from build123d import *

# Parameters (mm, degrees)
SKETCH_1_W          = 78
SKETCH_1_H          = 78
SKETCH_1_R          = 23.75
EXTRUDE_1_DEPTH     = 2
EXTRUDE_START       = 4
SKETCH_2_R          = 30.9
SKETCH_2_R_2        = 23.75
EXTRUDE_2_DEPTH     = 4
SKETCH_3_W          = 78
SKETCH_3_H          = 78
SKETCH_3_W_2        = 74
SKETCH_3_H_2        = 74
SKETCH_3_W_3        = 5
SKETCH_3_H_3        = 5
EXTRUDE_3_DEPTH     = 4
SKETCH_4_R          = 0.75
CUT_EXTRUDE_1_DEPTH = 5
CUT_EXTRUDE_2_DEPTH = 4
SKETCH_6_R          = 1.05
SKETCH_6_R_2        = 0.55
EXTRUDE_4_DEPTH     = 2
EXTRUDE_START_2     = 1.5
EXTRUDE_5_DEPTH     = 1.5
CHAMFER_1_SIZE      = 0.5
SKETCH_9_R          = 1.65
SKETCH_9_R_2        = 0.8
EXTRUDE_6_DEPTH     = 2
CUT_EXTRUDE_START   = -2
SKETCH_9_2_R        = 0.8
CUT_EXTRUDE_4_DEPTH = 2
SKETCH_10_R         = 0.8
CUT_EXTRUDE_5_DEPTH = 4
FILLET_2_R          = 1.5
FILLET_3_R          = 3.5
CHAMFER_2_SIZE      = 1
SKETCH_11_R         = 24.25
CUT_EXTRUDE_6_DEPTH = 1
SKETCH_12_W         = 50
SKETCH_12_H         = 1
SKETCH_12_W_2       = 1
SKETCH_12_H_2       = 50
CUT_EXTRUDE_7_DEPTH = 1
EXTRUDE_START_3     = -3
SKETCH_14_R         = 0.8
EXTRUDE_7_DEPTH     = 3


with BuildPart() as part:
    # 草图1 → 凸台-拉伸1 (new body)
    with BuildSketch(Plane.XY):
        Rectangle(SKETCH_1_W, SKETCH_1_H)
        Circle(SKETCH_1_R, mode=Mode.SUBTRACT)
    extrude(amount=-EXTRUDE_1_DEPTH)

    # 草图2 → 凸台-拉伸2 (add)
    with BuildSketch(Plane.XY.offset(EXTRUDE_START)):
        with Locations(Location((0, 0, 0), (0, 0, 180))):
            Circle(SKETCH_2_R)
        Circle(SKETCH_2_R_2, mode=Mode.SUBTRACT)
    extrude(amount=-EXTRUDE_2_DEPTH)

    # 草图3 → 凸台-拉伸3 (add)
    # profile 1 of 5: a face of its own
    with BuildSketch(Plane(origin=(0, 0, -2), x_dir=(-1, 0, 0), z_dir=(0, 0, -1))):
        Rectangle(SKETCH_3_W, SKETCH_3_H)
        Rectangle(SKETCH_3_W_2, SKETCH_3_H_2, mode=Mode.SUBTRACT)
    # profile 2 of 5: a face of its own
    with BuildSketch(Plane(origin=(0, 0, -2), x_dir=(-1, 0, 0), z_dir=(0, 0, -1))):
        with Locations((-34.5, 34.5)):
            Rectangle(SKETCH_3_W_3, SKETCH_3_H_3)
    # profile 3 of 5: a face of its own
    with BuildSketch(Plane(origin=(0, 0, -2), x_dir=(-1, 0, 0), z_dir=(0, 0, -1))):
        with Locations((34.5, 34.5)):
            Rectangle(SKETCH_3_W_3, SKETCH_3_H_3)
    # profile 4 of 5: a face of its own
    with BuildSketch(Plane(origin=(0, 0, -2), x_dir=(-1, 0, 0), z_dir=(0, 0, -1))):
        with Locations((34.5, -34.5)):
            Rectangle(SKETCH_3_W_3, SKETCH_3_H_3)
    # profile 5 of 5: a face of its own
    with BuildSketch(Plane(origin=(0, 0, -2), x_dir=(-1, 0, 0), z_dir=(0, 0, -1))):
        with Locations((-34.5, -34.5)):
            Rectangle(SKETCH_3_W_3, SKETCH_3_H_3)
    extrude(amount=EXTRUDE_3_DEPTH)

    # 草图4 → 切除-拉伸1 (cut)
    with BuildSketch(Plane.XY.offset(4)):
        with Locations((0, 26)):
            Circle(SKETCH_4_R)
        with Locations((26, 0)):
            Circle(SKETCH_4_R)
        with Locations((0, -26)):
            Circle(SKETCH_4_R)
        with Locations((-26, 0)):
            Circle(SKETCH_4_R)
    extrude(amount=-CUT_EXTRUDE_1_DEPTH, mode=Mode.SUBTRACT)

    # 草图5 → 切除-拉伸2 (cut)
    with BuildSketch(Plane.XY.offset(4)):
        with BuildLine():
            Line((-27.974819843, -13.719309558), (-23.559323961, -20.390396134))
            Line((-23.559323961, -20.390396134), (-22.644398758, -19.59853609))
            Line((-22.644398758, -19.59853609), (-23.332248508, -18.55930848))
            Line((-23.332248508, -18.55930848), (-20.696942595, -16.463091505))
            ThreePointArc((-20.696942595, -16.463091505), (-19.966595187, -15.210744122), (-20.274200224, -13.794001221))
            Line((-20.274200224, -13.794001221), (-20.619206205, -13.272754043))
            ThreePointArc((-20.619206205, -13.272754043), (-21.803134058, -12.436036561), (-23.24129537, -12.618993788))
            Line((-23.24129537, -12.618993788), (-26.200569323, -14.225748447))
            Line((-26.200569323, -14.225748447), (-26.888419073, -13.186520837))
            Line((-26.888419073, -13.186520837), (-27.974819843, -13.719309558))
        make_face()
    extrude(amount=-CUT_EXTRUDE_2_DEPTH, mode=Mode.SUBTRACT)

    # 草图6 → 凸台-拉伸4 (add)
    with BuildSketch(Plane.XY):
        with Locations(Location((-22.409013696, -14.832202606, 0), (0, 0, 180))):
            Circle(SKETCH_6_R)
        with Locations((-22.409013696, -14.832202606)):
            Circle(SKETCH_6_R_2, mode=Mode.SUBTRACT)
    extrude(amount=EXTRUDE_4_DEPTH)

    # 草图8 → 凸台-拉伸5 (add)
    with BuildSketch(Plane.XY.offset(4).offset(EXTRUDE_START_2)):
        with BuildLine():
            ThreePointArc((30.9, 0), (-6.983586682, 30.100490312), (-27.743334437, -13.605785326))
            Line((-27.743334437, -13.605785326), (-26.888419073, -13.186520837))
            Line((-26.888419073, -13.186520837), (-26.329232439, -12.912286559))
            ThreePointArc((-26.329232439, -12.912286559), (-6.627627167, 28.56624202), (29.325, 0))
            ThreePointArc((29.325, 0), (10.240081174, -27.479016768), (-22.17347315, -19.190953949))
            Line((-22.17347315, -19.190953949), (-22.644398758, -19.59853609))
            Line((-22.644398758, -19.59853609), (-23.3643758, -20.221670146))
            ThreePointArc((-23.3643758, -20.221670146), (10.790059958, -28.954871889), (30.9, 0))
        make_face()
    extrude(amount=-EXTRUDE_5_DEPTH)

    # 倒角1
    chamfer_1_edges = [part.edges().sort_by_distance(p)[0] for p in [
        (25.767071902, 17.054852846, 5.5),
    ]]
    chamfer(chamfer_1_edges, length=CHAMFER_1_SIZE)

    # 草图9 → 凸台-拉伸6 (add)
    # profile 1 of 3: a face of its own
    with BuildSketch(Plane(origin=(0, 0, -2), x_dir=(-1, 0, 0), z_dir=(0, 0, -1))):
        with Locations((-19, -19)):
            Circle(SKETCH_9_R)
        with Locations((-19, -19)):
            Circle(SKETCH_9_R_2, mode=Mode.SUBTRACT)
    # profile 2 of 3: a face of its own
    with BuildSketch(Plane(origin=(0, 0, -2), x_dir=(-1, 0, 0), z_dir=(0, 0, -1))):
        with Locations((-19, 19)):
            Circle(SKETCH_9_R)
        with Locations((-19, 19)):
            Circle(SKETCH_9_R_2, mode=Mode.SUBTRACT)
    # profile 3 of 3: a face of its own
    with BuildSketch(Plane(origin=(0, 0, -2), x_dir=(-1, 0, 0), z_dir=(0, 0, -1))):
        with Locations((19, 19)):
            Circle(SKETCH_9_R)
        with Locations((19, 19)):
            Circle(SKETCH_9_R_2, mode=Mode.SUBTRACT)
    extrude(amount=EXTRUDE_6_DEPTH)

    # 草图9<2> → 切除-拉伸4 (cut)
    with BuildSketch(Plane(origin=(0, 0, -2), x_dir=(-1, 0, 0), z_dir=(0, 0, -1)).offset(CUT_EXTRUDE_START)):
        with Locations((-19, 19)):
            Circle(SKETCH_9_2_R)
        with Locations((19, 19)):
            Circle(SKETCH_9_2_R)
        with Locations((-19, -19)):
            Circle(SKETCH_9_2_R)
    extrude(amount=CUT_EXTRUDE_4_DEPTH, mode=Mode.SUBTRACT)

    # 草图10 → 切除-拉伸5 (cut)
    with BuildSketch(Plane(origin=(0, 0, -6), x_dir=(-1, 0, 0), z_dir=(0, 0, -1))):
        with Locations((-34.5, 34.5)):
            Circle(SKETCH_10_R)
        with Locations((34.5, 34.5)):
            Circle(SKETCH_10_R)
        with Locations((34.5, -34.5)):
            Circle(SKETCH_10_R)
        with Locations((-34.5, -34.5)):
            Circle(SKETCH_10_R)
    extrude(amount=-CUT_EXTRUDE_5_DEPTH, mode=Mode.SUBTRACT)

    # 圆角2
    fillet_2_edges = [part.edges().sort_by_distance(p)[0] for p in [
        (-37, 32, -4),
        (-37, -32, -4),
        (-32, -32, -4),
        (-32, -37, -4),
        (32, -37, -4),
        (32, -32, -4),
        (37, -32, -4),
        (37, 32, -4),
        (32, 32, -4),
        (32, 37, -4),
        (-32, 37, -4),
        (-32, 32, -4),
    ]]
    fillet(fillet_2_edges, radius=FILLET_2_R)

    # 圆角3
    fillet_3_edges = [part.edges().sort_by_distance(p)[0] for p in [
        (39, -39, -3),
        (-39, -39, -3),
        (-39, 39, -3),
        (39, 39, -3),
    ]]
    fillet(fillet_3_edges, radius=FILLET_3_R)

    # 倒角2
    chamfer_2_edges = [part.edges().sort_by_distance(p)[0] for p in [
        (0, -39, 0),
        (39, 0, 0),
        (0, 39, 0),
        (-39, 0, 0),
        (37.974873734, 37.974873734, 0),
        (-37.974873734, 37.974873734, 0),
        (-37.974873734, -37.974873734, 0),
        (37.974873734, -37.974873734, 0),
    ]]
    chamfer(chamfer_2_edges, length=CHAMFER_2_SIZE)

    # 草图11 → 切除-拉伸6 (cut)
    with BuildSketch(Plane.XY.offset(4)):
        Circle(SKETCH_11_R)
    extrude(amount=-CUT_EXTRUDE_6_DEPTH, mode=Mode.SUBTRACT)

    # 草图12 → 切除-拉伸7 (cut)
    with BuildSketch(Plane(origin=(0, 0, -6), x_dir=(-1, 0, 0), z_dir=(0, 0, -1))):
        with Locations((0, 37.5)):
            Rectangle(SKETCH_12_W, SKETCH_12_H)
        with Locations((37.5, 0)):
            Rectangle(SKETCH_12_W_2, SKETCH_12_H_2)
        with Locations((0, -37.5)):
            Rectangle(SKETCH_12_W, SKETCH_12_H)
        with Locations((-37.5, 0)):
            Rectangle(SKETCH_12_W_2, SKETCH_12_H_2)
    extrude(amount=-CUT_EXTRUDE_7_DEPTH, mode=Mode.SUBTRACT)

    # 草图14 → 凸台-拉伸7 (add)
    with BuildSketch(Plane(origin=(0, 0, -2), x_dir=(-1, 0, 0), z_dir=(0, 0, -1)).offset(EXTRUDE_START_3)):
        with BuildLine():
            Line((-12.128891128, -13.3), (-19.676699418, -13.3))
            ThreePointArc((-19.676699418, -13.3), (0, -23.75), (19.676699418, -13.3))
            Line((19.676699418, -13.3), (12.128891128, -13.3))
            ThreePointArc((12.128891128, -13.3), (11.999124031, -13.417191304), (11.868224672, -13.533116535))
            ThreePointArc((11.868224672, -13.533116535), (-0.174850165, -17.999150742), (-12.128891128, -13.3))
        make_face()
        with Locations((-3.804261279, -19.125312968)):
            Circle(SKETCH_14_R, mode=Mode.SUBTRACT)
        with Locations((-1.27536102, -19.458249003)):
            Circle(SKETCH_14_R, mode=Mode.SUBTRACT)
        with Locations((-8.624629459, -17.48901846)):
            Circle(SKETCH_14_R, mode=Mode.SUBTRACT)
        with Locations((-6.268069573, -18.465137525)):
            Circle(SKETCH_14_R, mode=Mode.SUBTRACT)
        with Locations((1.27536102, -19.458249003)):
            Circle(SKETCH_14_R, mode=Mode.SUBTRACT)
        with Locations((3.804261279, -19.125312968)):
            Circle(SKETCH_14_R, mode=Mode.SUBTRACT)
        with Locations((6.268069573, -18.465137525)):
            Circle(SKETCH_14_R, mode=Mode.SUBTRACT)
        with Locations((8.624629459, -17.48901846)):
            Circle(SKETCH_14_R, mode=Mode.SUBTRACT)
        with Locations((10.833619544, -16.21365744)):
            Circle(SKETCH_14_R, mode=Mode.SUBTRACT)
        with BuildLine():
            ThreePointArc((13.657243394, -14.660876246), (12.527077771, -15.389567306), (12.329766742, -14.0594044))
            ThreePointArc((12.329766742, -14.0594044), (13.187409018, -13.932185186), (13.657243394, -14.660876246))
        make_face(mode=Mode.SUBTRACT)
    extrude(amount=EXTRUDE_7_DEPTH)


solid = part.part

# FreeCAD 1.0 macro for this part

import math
import FreeCAD as App
import Part
import Sketcher
from FreeCAD import Vector
Q = App.Units.Quantity


def edges_at(feature, points):
    """Names of the edges that pass closest to the given points."""
    edges = feature.Shape.Edges
    near = lambda p: min(range(len(edges)), key=lambda i: edges[i].distToShape(Part.Vertex(*p))[0])
    return sorted({f"Edge{near(p) + 1}" for p in points})


def add_polygon(sketch, points):
    """Adds a closed chain of lines whose ends are joined by coincident constraints."""
    first, n = sketch.GeometryCount, len(points)
    for a, b in zip(points, points[1:] + points[:1]):
        sketch.addGeometry(Part.LineSegment(App.Vector(*a, 0), App.Vector(*b, 0)), False)
    for i in range(n):
        sketch.addConstraint(Sketcher.Constraint("Coincident", first + i, 2, first + (i + 1) % n, 1))

doc = App.newDocument("Part")
body = doc.addObject("PartDesign::Body", "Body")

# Sketch on XY plane
sketch1 = body.newObject("Sketcher::SketchObject", "Sketch")
sketch1.AttachmentSupport = (doc.getObject("XY_Plane"), [""])
sketch1.MapMode = "FlatFace"
add_polygon(sketch1, [(-39, 39), (-39, -39), (39, -39), (39, 39)])  # lines 0-3
sketch1.addGeometry(Part.Circle(Vector(0, 0, 0), Vector(0, 0, 1), 24), False)  # 4
sketch1.addConstraint(Sketcher.Constraint("Vertical", 0))
sketch1.addConstraint(Sketcher.Constraint("Horizontal", 1))
sketch1.addConstraint(Sketcher.Constraint("Vertical", 2))
sketch1.addConstraint(Sketcher.Constraint("Horizontal", 3))
sketch1.addConstraint(Sketcher.Constraint("Coincident", 4, 3, -1, 1))
sketch1.addConstraint(Sketcher.Constraint("Symmetric", 0, 2, 2, 2, -1, 1))
sketch1.addConstraint(Sketcher.Constraint("Equal", 3, 0))
sketch1.addConstraint(Sketcher.Constraint("Diameter", 4, Q("47.5 mm")))
sketch1.addConstraint(Sketcher.Constraint("DistanceX", 1, 1, 1, 2, Q("78 mm")))
pad1 = body.newObject("PartDesign::Pad", "Pad")
pad1.Profile = sketch1
pad1.Length = 2
pad1.Reversed = True

# Sketch on XY plane
sketch2 = body.newObject("Sketcher::SketchObject", "Sketch001")
sketch2.AttachmentSupport = (doc.getObject("XY_Plane"), [""])
sketch2.MapMode = "FlatFace"
sketch2.AttachmentOffset = App.Placement(Vector(0, 0, 4), App.Rotation())
sketch2.addGeometry(Part.Circle(Vector(0, 0, 0), Vector(0, 0, 1), 31), False)
sketch2.addGeometry(Part.Circle(Vector(0, 0, 0), Vector(0, 0, 1), 24), False)
sketch2.addConstraint(Sketcher.Constraint("Coincident", 0, 3, -1, 1))
sketch2.addConstraint(Sketcher.Constraint("Coincident", 1, 3, -1, 1))
sketch2.addConstraint(Sketcher.Constraint("Diameter", 0, Q("61.8 mm")))
sketch2.addConstraint(Sketcher.Constraint("Diameter", 1, Q("47.5 mm")))
pad2 = body.newObject("PartDesign::Pad", "Pad001")
pad2.Profile = sketch2
pad2.Length = 4
pad2.Reversed = True

# Sketch on XY plane
sketch3 = body.newObject("Sketcher::SketchObject", "Sketch002")
sketch3.AttachmentSupport = (doc.getObject("XY_Plane"), [""])
sketch3.MapMode = "FlatFace"
sketch3.AttachmentOffset = App.Placement(Vector(0, 0, -2), App.Rotation())
add_polygon(sketch3, [(39, 39), (39, -39), (-39, -39), (-39, 39)])  # lines 0-3
add_polygon(sketch3, [(-32, -37), (32, -37), (32, -32), (37, -32), (37, 32), (32, 32), (32, 37), (-32, 37), (-32, 32), (-37, 32), (-37, -32), (-32, -32)])  # lines 4-15
sketch3.addConstraint(Sketcher.Constraint("Vertical", 0))
sketch3.addConstraint(Sketcher.Constraint("Horizontal", 1))
sketch3.addConstraint(Sketcher.Constraint("Vertical", 2))
sketch3.addConstraint(Sketcher.Constraint("Horizontal", 3))
sketch3.addConstraint(Sketcher.Constraint("Horizontal", 4))
sketch3.addConstraint(Sketcher.Constraint("Vertical", 5))
sketch3.addConstraint(Sketcher.Constraint("Horizontal", 6))
sketch3.addConstraint(Sketcher.Constraint("Vertical", 7))
sketch3.addConstraint(Sketcher.Constraint("Horizontal", 8))
sketch3.addConstraint(Sketcher.Constraint("Vertical", 9))
sketch3.addConstraint(Sketcher.Constraint("Horizontal", 10))
sketch3.addConstraint(Sketcher.Constraint("Vertical", 11))
sketch3.addConstraint(Sketcher.Constraint("Horizontal", 12))
sketch3.addConstraint(Sketcher.Constraint("Vertical", 13))
sketch3.addConstraint(Sketcher.Constraint("Horizontal", 14))
sketch3.addConstraint(Sketcher.Constraint("Vertical", 15))
sketch3.addConstraint(Sketcher.Constraint("Symmetric", 0, 2, 2, 2, -1, 1))
sketch3.addConstraint(Sketcher.Constraint("Symmetric", 4, 2, 10, 2, -1, 1))
sketch3.addConstraint(Sketcher.Constraint("Symmetric", 6, 2, 12, 2, -1, 1))
sketch3.addConstraint(Sketcher.Constraint("Symmetric", 8, 2, 14, 2, -1, 1))
sketch3.addConstraint(Sketcher.Constraint("Symmetric", 8, 2, 11, 2, -2))
sketch3.addConstraint(Sketcher.Constraint("Equal", 3, 0))
sketch3.addConstraint(Sketcher.Constraint("Equal", 14, 5))
sketch3.addConstraint(Sketcher.Constraint("Equal", 10, 7))
sketch3.addConstraint(Sketcher.Constraint("DistanceX", 1, 2, 1, 1, Q("78 mm")))
sketch3.addConstraint(Sketcher.Constraint("DistanceX", 4, 1, 4, 2, Q("64 mm")))
sketch3.addConstraint(Sketcher.Constraint("DistanceX", 6, 1, 6, 2, Q("5 mm")))
pad3 = body.newObject("PartDesign::Pad", "Pad002")
pad3.Profile = sketch3
pad3.Length = 4
pad3.Reversed = True

# Sketch on XY plane
sketch4 = body.newObject("Sketcher::SketchObject", "Sketch003")
sketch4.AttachmentSupport = (doc.getObject("XY_Plane"), [""])
sketch4.MapMode = "FlatFace"
sketch4.AttachmentOffset = App.Placement(Vector(0, 0, 4), App.Rotation())
sketch4.addGeometry(Part.Circle(Vector(0, 26, 0), Vector(0, 0, 1), 0.8), False)
sketch4.addGeometry(Part.Circle(Vector(26, 0, 0), Vector(0, 0, 1), 0.8), False)
sketch4.addGeometry(Part.Circle(Vector(0, -26, 0), Vector(0, 0, 1), 0.8), False)
sketch4.addGeometry(Part.Circle(Vector(-26, 0, 0), Vector(0, 0, 1), 0.8), False)
sketch4.addConstraint(Sketcher.Constraint("Equal", 0, 1))
sketch4.addConstraint(Sketcher.Constraint("Equal", 1, 2))
sketch4.addConstraint(Sketcher.Constraint("Equal", 2, 3))
sketch4.addConstraint(Sketcher.Constraint("Symmetric", 0, 3, 2, 3, -1, 1))
sketch4.addConstraint(Sketcher.Constraint("Symmetric", 1, 3, 3, 3, -1, 1))
sketch4.addConstraint(Sketcher.Constraint("PointOnObject", 0, 3, -2))
sketch4.addConstraint(Sketcher.Constraint("PointOnObject", 1, 3, -1))
sketch4.addConstraint(Sketcher.Constraint("Diameter", 0, Q("1.5 mm")))
sketch4.addConstraint(Sketcher.Constraint("DistanceY", -1, 1, 0, 3, Q("26 mm")))
sketch4.addConstraint(Sketcher.Constraint("DistanceX", -1, 1, 1, 3, Q("26 mm")))
pocket1 = body.newObject("PartDesign::Pocket", "Pocket")
pocket1.Profile = sketch4
pocket1.Length = 5

# Sketch on XY plane
sketch5 = body.newObject("Sketcher::SketchObject", "Sketch004")
sketch5.AttachmentSupport = (doc.getObject("XY_Plane"), [""])
sketch5.MapMode = "FlatFace"
sketch5.AttachmentOffset = App.Placement(Vector(0, 0, 4), App.Rotation())
sketch5.addGeometry(Part.LineSegment(Vector(-28, -13.7, 0), Vector(-23.6, -20.4, 0)), False)
sketch5.addGeometry(Part.LineSegment(Vector(-23.6, -20.4, 0), Vector(-22.6, -19.6, 0)), False)
sketch5.addGeometry(Part.LineSegment(Vector(-22.6, -19.6, 0), Vector(-23.3, -18.6, 0)), False)
sketch5.addGeometry(Part.LineSegment(Vector(-23.3, -18.6, 0), Vector(-20.7, -16.5, 0)), False)
sketch5.addGeometry(Part.ArcOfCircle(Part.Circle(Vector(-21.9, -14.9, 0), Vector(0, 0, 1), 2), math.radians(-52), math.radians(34)), False)
sketch5.addGeometry(Part.LineSegment(Vector(-20.3, -13.8, 0), Vector(-20.6, -13.3, 0)), False)
sketch5.addGeometry(Part.ArcOfCircle(Part.Circle(Vector(-22.3, -14.4, 0), Vector(0, 0, 1), 2), math.radians(33), math.radians(118)), False)
sketch5.addGeometry(Part.LineSegment(Vector(-23.2, -12.6, 0), Vector(-26.2, -14.2, 0)), False)
sketch5.addGeometry(Part.LineSegment(Vector(-26.2, -14.2, 0), Vector(-26.9, -13.2, 0)), False)
sketch5.addGeometry(Part.LineSegment(Vector(-26.9, -13.2, 0), Vector(-28, -13.7, 0)), False)
sketch5.addConstraint(Sketcher.Constraint("Coincident", 0, 2, 1, 1))
sketch5.addConstraint(Sketcher.Constraint("Coincident", 1, 2, 2, 1))
sketch5.addConstraint(Sketcher.Constraint("Coincident", 2, 2, 3, 1))
sketch5.addConstraint(Sketcher.Constraint("Tangent", 3, 2, 4, 1))
sketch5.addConstraint(Sketcher.Constraint("Tangent", 4, 2, 5, 1))
sketch5.addConstraint(Sketcher.Constraint("Tangent", 5, 2, 6, 1))
sketch5.addConstraint(Sketcher.Constraint("Tangent", 6, 2, 7, 1))
sketch5.addConstraint(Sketcher.Constraint("Coincident", 7, 2, 8, 1))
sketch5.addConstraint(Sketcher.Constraint("Coincident", 8, 2, 9, 1))
sketch5.addConstraint(Sketcher.Constraint("Coincident", 9, 2, 0, 1))
sketch5.addConstraint(Sketcher.Constraint("Equal", 4, 6))
sketch5.addConstraint(Sketcher.Constraint("Parallel", 0, 2))
sketch5.addConstraint(Sketcher.Constraint("Parallel", 2, 5))
sketch5.addConstraint(Sketcher.Constraint("Parallel", 5, 8))
sketch5.addConstraint(Sketcher.Constraint("Equal", 3, 7))
sketch5.addConstraint(Sketcher.Constraint("Equal", 2, 8))
sketch5.addConstraint(Sketcher.Constraint("Equal", 1, 9))
sketch5.addConstraint(Sketcher.Constraint("Radius", 4, Q("2 mm")))
sketch5.addConstraint(Sketcher.Constraint("Distance", 0, Q("8 mm")))
sketch5.addConstraint(Sketcher.Constraint("Angle", 0, Q("-56.5 deg")))
sketch5.addConstraint(Sketcher.Constraint("Angle", 3, Q("38.5 deg")))
sketch5.addConstraint(Sketcher.Constraint("Angle", 7, Q("-151.5 deg")))
sketch5.addConstraint(Sketcher.Constraint("DistanceY", 4, 2, -1, 1, Q("13.794001 mm")))
sketch5.addConstraint(Sketcher.Constraint("DistanceX", 1, 2, -1, 1, Q("22.644399 mm")))
sketch5.addConstraint(Sketcher.Constraint("DistanceX", 4, 2, -1, 1, Q("20.2742 mm")))
sketch5.addConstraint(Sketcher.Constraint("DistanceX", 9, 2, 8, 2, Q("1.086401 mm")))
sketch5.addConstraint(Sketcher.Constraint("DistanceY", 6, 3, -1, 1, Q("14.376628 mm")))
sketch5.addConstraint(Sketcher.Constraint("DistanceX", 2, 2, -1, 1, Q("23.332249 mm")))
pocket2 = body.newObject("PartDesign::Pocket", "Pocket001")
pocket2.Profile = sketch5
pocket2.Length = 4

# Sketch on XY plane
sketch6 = body.newObject("Sketcher::SketchObject", "Sketch005")
sketch6.AttachmentSupport = (doc.getObject("XY_Plane"), [""])
sketch6.MapMode = "FlatFace"
sketch6.addGeometry(Part.Circle(Vector(-22.4, -14.8, 0), Vector(0, 0, 1), 1.1), False)
sketch6.addGeometry(Part.Circle(Vector(-22.4, -14.8, 0), Vector(0, 0, 1), 0.6), False)
sketch6.addConstraint(Sketcher.Constraint("Coincident", 1, 3, 0, 3))
sketch6.addConstraint(Sketcher.Constraint("Diameter", 0, Q("2.1 mm")))
sketch6.addConstraint(Sketcher.Constraint("Diameter", 1, Q("1.1 mm")))
sketch6.addConstraint(Sketcher.Constraint("DistanceX", 0, 3, -1, 1, Q("22.409014 mm")))
sketch6.addConstraint(Sketcher.Constraint("DistanceY", 0, 3, -1, 1, Q("14.832203 mm")))
pad4 = body.newObject("PartDesign::Pad", "Pad003")
pad4.Profile = sketch6
pad4.Length = 2

# Sketch on XY plane
sketch7 = body.newObject("Sketcher::SketchObject", "Sketch006")
sketch7.AttachmentSupport = (doc.getObject("XY_Plane"), [""])
sketch7.MapMode = "FlatFace"
sketch7.AttachmentOffset = App.Placement(Vector(0, 0, 5.5), App.Rotation())
sketch7.addGeometry(Part.ArcOfCircle(Part.Circle(Vector(0, 0, 0), Vector(0, 0, 1), 30.9), math.radians(0), math.radians(206)), False)
sketch7.addGeometry(Part.LineSegment(Vector(-27.7, -13.6, 0), Vector(-26.9, -13.2, 0)), False)
sketch7.addGeometry(Part.LineSegment(Vector(-26.9, -13.2, 0), Vector(-26.3, -12.9, 0)), False)
sketch7.addGeometry(Part.ArcOfCircle(Part.Circle(Vector(0, 0, 0), Vector(0, 0, 1), 29.3), math.radians(0), math.radians(206)), False)
sketch7.addGeometry(Part.ArcOfCircle(Part.Circle(Vector(0, 0, 0), Vector(0, 0, 1), 29.3), math.radians(-139), math.radians(0)), False)
sketch7.addGeometry(Part.LineSegment(Vector(-22.2, -19.2, 0), Vector(-22.6, -19.6, 0)), False)
sketch7.addGeometry(Part.LineSegment(Vector(-22.6, -19.6, 0), Vector(-23.4, -20.2, 0)), False)
sketch7.addGeometry(Part.ArcOfCircle(Part.Circle(Vector(0, 0, 0), Vector(0, 0, 1), 30.9), math.radians(-139), math.radians(0)), False)
sketch7.addConstraint(Sketcher.Constraint("Coincident", 0, 2, 1, 1))
sketch7.addConstraint(Sketcher.Constraint("Coincident", 1, 2, 2, 1))
sketch7.addConstraint(Sketcher.Constraint("Coincident", 2, 2, 3, 2))
sketch7.addConstraint(Sketcher.Constraint("Tangent", 3, 1, 4, 2))
sketch7.addConstraint(Sketcher.Constraint("Coincident", 4, 1, 5, 1))
sketch7.addConstraint(Sketcher.Constraint("Coincident", 5, 2, 6, 1))
sketch7.addConstraint(Sketcher.Constraint("Coincident", 6, 2, 7, 1))
sketch7.addConstraint(Sketcher.Constraint("Tangent", 7, 2, 0, 1))
sketch7.addConstraint(Sketcher.Constraint("Coincident", 0, 3, -1, 1))
sketch7.addConstraint(Sketcher.Constraint("Coincident", 3, 3, -1, 1))
sketch7.addConstraint(Sketcher.Constraint("Equal", 3, 4))
sketch7.addConstraint(Sketcher.Constraint("Equal", 0, 7))
sketch7.addConstraint(Sketcher.Constraint("PointOnObject", 3, 1, -1))
sketch7.addConstraint(Sketcher.Constraint("PointOnObject", 7, 2, -1))
sketch7.addConstraint(Sketcher.Constraint("Parallel", 1, 2))
sketch7.addConstraint(Sketcher.Constraint("Parallel", 5, 6))
sketch7.addConstraint(Sketcher.Constraint("Equal", 2, 5))
sketch7.addConstraint(Sketcher.Constraint("Radius", 0, Q("30.9 mm")))
sketch7.addConstraint(Sketcher.Constraint("Radius", 3, Q("29.325 mm")))
sketch7.addConstraint(Sketcher.Constraint("DistanceX", 5, 2, -1, 1, Q("22.644399 mm")))
sketch7.addConstraint(Sketcher.Constraint("DistanceX", 0, 2, 2, 2, Q("1.414102 mm")))
sketch7.addConstraint(Sketcher.Constraint("Distance", 1, Q("0.952189 mm")))
sketch7.addConstraint(Sketcher.Constraint("DistanceX", 1, 2, -1, 1, Q("26.888419 mm")))
sketch7.addConstraint(Sketcher.Constraint("DistanceY", 6, 2, -1, 1, Q("20.22167 mm")))
pad5 = body.newObject("PartDesign::Pad", "Pad004")
pad5.Profile = sketch7
pad5.Length = 1.5
pad5.Reversed = True
doc.recompute()

chamfer = body.newObject("PartDesign::Chamfer", "Chamfer")
chamfer.Base = (pad5, edges_at(pad5, [(-6.984, 30.1, 5.5)]))
chamfer.Size = 0.5

# Sketch on XY plane
sketch8 = body.newObject("Sketcher::SketchObject", "Sketch007")
sketch8.AttachmentSupport = (doc.getObject("XY_Plane"), [""])
sketch8.MapMode = "FlatFace"
sketch8.AttachmentOffset = App.Placement(Vector(0, 0, -2), App.Rotation())
sketch8.addGeometry(Part.Circle(Vector(19, -19, 0), Vector(0, 0, 1), 1.6), False)
sketch8.addGeometry(Part.Circle(Vector(19, -19, 0), Vector(0, 0, 1), 0.8), False)
sketch8.addGeometry(Part.Circle(Vector(19, 19, 0), Vector(0, 0, 1), 1.6), False)
sketch8.addGeometry(Part.Circle(Vector(19, 19, 0), Vector(0, 0, 1), 0.8), False)
sketch8.addGeometry(Part.Circle(Vector(-19, 19, 0), Vector(0, 0, 1), 1.6), False)
sketch8.addGeometry(Part.Circle(Vector(-19, 19, 0), Vector(0, 0, 1), 0.8), False)
sketch8.addConstraint(Sketcher.Constraint("Coincident", 1, 3, 0, 3))
sketch8.addConstraint(Sketcher.Constraint("Coincident", 3, 3, 2, 3))
sketch8.addConstraint(Sketcher.Constraint("Coincident", 5, 3, 4, 3))
sketch8.addConstraint(Sketcher.Constraint("Equal", 0, 2))
sketch8.addConstraint(Sketcher.Constraint("Equal", 1, 3))
sketch8.addConstraint(Sketcher.Constraint("Equal", 2, 4))
sketch8.addConstraint(Sketcher.Constraint("Equal", 3, 5))
sketch8.addConstraint(Sketcher.Constraint("Symmetric", 0, 3, 4, 3, -1, 1))
sketch8.addConstraint(Sketcher.Constraint("Symmetric", 2, 3, 4, 3, -2))
sketch8.addConstraint(Sketcher.Constraint("Diameter", 0, Q("3.3 mm")))
sketch8.addConstraint(Sketcher.Constraint("Diameter", 1, Q("1.6 mm")))
sketch8.addConstraint(Sketcher.Constraint("DistanceX", -1, 1, 0, 3, Q("19 mm")))
sketch8.addConstraint(Sketcher.Constraint("DistanceY", 0, 3, -1, 1, Q("19 mm")))
pad6 = body.newObject("PartDesign::Pad", "Pad005")
pad6.Profile = sketch8
pad6.Length = 2
pad6.Reversed = True

# Sketch on XY plane
sketch9 = body.newObject("Sketcher::SketchObject", "Sketch008")
sketch9.AttachmentSupport = (doc.getObject("XY_Plane"), [""])
sketch9.MapMode = "FlatFace"
sketch9.addGeometry(Part.Circle(Vector(19, 19, 0), Vector(0, 0, 1), 0.8), False)
sketch9.addGeometry(Part.Circle(Vector(-19, 19, 0), Vector(0, 0, 1), 0.8), False)
sketch9.addGeometry(Part.Circle(Vector(19, -19, 0), Vector(0, 0, 1), 0.8), False)
sketch9.addConstraint(Sketcher.Constraint("Equal", 0, 1))
sketch9.addConstraint(Sketcher.Constraint("Equal", 1, 2))
sketch9.addConstraint(Sketcher.Constraint("Symmetric", 1, 3, 2, 3, -1, 1))
sketch9.addConstraint(Sketcher.Constraint("Symmetric", 0, 3, 1, 3, -2))
sketch9.addConstraint(Sketcher.Constraint("Diameter", 0, Q("1.6 mm")))
sketch9.addConstraint(Sketcher.Constraint("DistanceX", -1, 1, 0, 3, Q("19 mm")))
sketch9.addConstraint(Sketcher.Constraint("DistanceY", -1, 1, 0, 3, Q("19 mm")))
pocket3 = body.newObject("PartDesign::Pocket", "Pocket002")
pocket3.Profile = sketch9
pocket3.Length = 2

# Sketch on XY plane
sketch10 = body.newObject("Sketcher::SketchObject", "Sketch009")
sketch10.AttachmentSupport = (doc.getObject("XY_Plane"), [""])
sketch10.MapMode = "FlatFace"
sketch10.AttachmentOffset = App.Placement(Vector(0, 0, -6), App.Rotation())
sketch10.addGeometry(Part.Circle(Vector(34.5, 34.5, 0), Vector(0, 0, 1), 0.8), False)
sketch10.addGeometry(Part.Circle(Vector(-34.5, 34.5, 0), Vector(0, 0, 1), 0.8), False)
sketch10.addGeometry(Part.Circle(Vector(-34.5, -34.5, 0), Vector(0, 0, 1), 0.8), False)
sketch10.addGeometry(Part.Circle(Vector(34.5, -34.5, 0), Vector(0, 0, 1), 0.8), False)
sketch10.addConstraint(Sketcher.Constraint("Equal", 0, 1))
sketch10.addConstraint(Sketcher.Constraint("Equal", 1, 2))
sketch10.addConstraint(Sketcher.Constraint("Equal", 2, 3))
sketch10.addConstraint(Sketcher.Constraint("Symmetric", 0, 3, 2, 3, -1, 1))
sketch10.addConstraint(Sketcher.Constraint("Symmetric", 1, 3, 3, 3, -1, 1))
sketch10.addConstraint(Sketcher.Constraint("Symmetric", 0, 3, 1, 3, -2))
sketch10.addConstraint(Sketcher.Constraint("Diameter", 0, Q("1.6 mm")))
sketch10.addConstraint(Sketcher.Constraint("DistanceX", 1, 3, 0, 3, Q("69 mm")))
sketch10.addConstraint(Sketcher.Constraint("DistanceY", 2, 3, 1, 3, Q("69 mm")))
pocket4 = body.newObject("PartDesign::Pocket", "Pocket003")
pocket4.Profile = sketch10
pocket4.Length = 4
pocket4.Reversed = True
doc.recompute()

fillet = body.newObject("PartDesign::Fillet", "Fillet")
fillet.Base = (pocket4, edges_at(pocket4, [
    (-37, 32, -4),
    (-37, -32, -4),
    (-32, -32, -4),
    (-32, -37, -4),
    (32, -37, -4),
    (32, -32, -4),
    (37, -32, -4),
    (37, 32, -4),
    (32, 32, -4),
    (32, 37, -4),
    (-32, 37, -4),
    (-32, 32, -4),
]))
fillet.Radius = 1.5
doc.recompute()

fillet2 = body.newObject("PartDesign::Fillet", "Fillet001")
fillet2.Base = (fillet, edges_at(fillet, [
    (39, -39, -3),
    (-39, -39, -3),
    (-39, 39, -3),
    (39, 39, -3),
]))
fillet2.Radius = 3.5
doc.recompute()

chamfer2 = body.newObject("PartDesign::Chamfer", "Chamfer001")
chamfer2.Base = (fillet2, edges_at(fillet2, [
    (0, -39, 0),
    (39, 0, 0),
    (0, 39, 0),
    (-39, 0, 0),
    (37.975, 37.975, 0),
    (-37.975, 37.975, 0),
    (-37.975, -37.975, 0),
    (37.975, -37.975, 0),
]))
chamfer2.Size = 1

# Sketch on XY plane
sketch11 = body.newObject("Sketcher::SketchObject", "Sketch010")
sketch11.AttachmentSupport = (doc.getObject("XY_Plane"), [""])
sketch11.MapMode = "FlatFace"
sketch11.AttachmentOffset = App.Placement(Vector(0, 0, 4), App.Rotation())
sketch11.addGeometry(Part.Circle(Vector(0, 0, 0), Vector(0, 0, 1), 24), False)
sketch11.addConstraint(Sketcher.Constraint("Coincident", 0, 3, -1, 1))
sketch11.addConstraint(Sketcher.Constraint("Diameter", 0, Q("48.5 mm")))
pocket5 = body.newObject("PartDesign::Pocket", "Pocket004")
pocket5.Profile = sketch11
pocket5.Length = 1

# Sketch on XY plane
sketch12 = body.newObject("Sketcher::SketchObject", "Sketch011")
sketch12.AttachmentSupport = (doc.getObject("XY_Plane"), [""])
sketch12.MapMode = "FlatFace"
sketch12.AttachmentOffset = App.Placement(Vector(0, 0, -6), App.Rotation())
add_polygon(sketch12, [(25, 38), (25, 37), (-25, 37), (-25, 38)])  # lines 0-3
add_polygon(sketch12, [(-37, 25), (-37, -25), (-38, -25), (-38, 25)])  # lines 4-7
add_polygon(sketch12, [(25, -37), (25, -38), (-25, -38), (-25, -37)])  # lines 8-11
add_polygon(sketch12, [(38, 25), (38, -25), (37, -25), (37, 25)])  # lines 12-15
sketch12.addConstraint(Sketcher.Constraint("Vertical", 0))
sketch12.addConstraint(Sketcher.Constraint("Horizontal", 1))
sketch12.addConstraint(Sketcher.Constraint("Vertical", 2))
sketch12.addConstraint(Sketcher.Constraint("Horizontal", 3))
sketch12.addConstraint(Sketcher.Constraint("Vertical", 4))
sketch12.addConstraint(Sketcher.Constraint("Horizontal", 5))
sketch12.addConstraint(Sketcher.Constraint("Vertical", 6))
sketch12.addConstraint(Sketcher.Constraint("Horizontal", 7))
sketch12.addConstraint(Sketcher.Constraint("Vertical", 8))
sketch12.addConstraint(Sketcher.Constraint("Horizontal", 9))
sketch12.addConstraint(Sketcher.Constraint("Vertical", 10))
sketch12.addConstraint(Sketcher.Constraint("Horizontal", 11))
sketch12.addConstraint(Sketcher.Constraint("Vertical", 12))
sketch12.addConstraint(Sketcher.Constraint("Horizontal", 13))
sketch12.addConstraint(Sketcher.Constraint("Vertical", 14))
sketch12.addConstraint(Sketcher.Constraint("Horizontal", 15))
sketch12.addConstraint(Sketcher.Constraint("Symmetric", 2, 2, 8, 2, -1, 1))
sketch12.addConstraint(Sketcher.Constraint("Symmetric", 0, 2, 10, 2, -1, 1))
sketch12.addConstraint(Sketcher.Constraint("Symmetric", 6, 2, 12, 2, -1, 1))
sketch12.addConstraint(Sketcher.Constraint("Symmetric", 4, 2, 14, 2, -1, 1))
sketch12.addConstraint(Sketcher.Constraint("Horizontal", 5, 2, 12, 2))
sketch12.addConstraint(Sketcher.Constraint("Vertical", 3, 2, 8, 2))
sketch12.addConstraint(Sketcher.Constraint("Equal", 15, 0))
sketch12.addConstraint(Sketcher.Constraint("Equal", 11, 4))
sketch12.addConstraint(Sketcher.Constraint("DistanceX", 1, 2, 1, 1, Q("50 mm")))
sketch12.addConstraint(Sketcher.Constraint("DistanceX", 5, 2, 5, 1, Q("1 mm")))
sketch12.addConstraint(Sketcher.Constraint("DistanceY", -1, 1, 0, 2, Q("37 mm")))
sketch12.addConstraint(Sketcher.Constraint("DistanceX", 4, 2, -1, 1, Q("37 mm")))
pocket6 = body.newObject("PartDesign::Pocket", "Pocket005")
pocket6.Profile = sketch12
pocket6.Length = 1
pocket6.Reversed = True

# Sketch on XY plane
sketch13 = body.newObject("Sketcher::SketchObject", "Sketch012")
sketch13.AttachmentSupport = (doc.getObject("XY_Plane"), [""])
sketch13.MapMode = "FlatFace"
sketch13.AttachmentOffset = App.Placement(Vector(0, 0, 1), App.Rotation())
sketch13.addGeometry(Part.LineSegment(Vector(12.13, -13.3, 0), Vector(19.68, -13.3, 0)), False)
sketch13.addGeometry(Part.ArcOfCircle(Part.Circle(Vector(0, 0, 0), Vector(0, 0, 1), 23.75), math.radians(-146), math.radians(-34)), False)
sketch13.addGeometry(Part.LineSegment(Vector(-19.68, -13.3, 0), Vector(-12.13, -13.3, 0)), False)
sketch13.addGeometry(Part.ArcOfCircle(Part.Circle(Vector(0, 0, 0), Vector(0, 0, 1), 18), math.radians(-132.36), math.radians(-131.25)), False)
sketch13.addGeometry(Part.ArcOfCircle(Part.Circle(Vector(0, 0, 0), Vector(0, 0, 1), 18), math.radians(-131), math.radians(-48)), False)
sketch13.addGeometry(Part.Circle(Vector(3.8, -19.13, 0), Vector(0, 0, 1), 0.8), False)
sketch13.addGeometry(Part.Circle(Vector(1.28, -19.46, 0), Vector(0, 0, 1), 0.8), False)
sketch13.addGeometry(Part.Circle(Vector(-1.28, -19.46, 0), Vector(0, 0, 1), 0.8), False)
sketch13.addGeometry(Part.Circle(Vector(6.27, -18.47, 0), Vector(0, 0, 1), 0.8), False)
sketch13.addGeometry(Part.Circle(Vector(8.62, -17.49, 0), Vector(0, 0, 1), 0.8), False)
sketch13.addGeometry(Part.Circle(Vector(-3.8, -19.13, 0), Vector(0, 0, 1), 0.8), False)
sketch13.addGeometry(Part.Circle(Vector(-6.27, -18.47, 0), Vector(0, 0, 1), 0.8), False)
sketch13.addGeometry(Part.Circle(Vector(-8.62, -17.49, 0), Vector(0, 0, 1), 0.8), False)
sketch13.addGeometry(Part.Circle(Vector(-10.83, -16.21, 0), Vector(0, 0, 1), 0.8), False)
sketch13.addGeometry(Part.ArcOfCircle(Part.Circle(Vector(-12.86, -14.66, 0), Vector(0, 0, 1), 0.8), math.radians(49), math.radians(180)), False)
sketch13.addGeometry(Part.ArcOfCircle(Part.Circle(Vector(-12.86, -14.66, 0), Vector(0, 0, 1), 0.8), math.radians(180), math.radians(409)), False)
sketch13.addConstraint(Sketcher.Constraint("Coincident", 0, 2, 1, 2))
sketch13.addConstraint(Sketcher.Constraint("Coincident", 1, 1, 2, 1))
sketch13.addConstraint(Sketcher.Constraint("Coincident", 2, 2, 3, 1))
sketch13.addConstraint(Sketcher.Constraint("Tangent", 3, 2, 4, 1))
sketch13.addConstraint(Sketcher.Constraint("Coincident", 4, 2, 0, 1))
sketch13.addConstraint(Sketcher.Constraint("Tangent", 14, 1, 15, 2))
sketch13.addConstraint(Sketcher.Constraint("Coincident", 15, 1, 14, 2))
sketch13.addConstraint(Sketcher.Constraint("Horizontal", 0))
sketch13.addConstraint(Sketcher.Constraint("Horizontal", 2))
sketch13.addConstraint(Sketcher.Constraint("Coincident", 1, 3, -1, 1))
sketch13.addConstraint(Sketcher.Constraint("Coincident", 3, 3, -1, 1))
sketch13.addConstraint(Sketcher.Constraint("Equal", 5, 6))
sketch13.addConstraint(Sketcher.Constraint("Equal", 6, 7))
sketch13.addConstraint(Sketcher.Constraint("Equal", 7, 8))
sketch13.addConstraint(Sketcher.Constraint("Equal", 8, 9))
sketch13.addConstraint(Sketcher.Constraint("Equal", 9, 10))
sketch13.addConstraint(Sketcher.Constraint("Equal", 10, 11))
sketch13.addConstraint(Sketcher.Constraint("Equal", 11, 12))
sketch13.addConstraint(Sketcher.Constraint("Equal", 12, 13))
sketch13.addConstraint(Sketcher.Constraint("Equal", 13, 14))
sketch13.addConstraint(Sketcher.Constraint("Symmetric", 6, 3, 7, 3, -2))
sketch13.addConstraint(Sketcher.Constraint("Symmetric", 5, 3, 10, 3, -2))
sketch13.addConstraint(Sketcher.Constraint("Symmetric", 8, 3, 11, 3, -2))
sketch13.addConstraint(Sketcher.Constraint("Symmetric", 9, 3, 12, 3, -2))
sketch13.addConstraint(Sketcher.Constraint("Symmetric", 2, 2, 4, 2, -2))
sketch13.addConstraint(Sketcher.Constraint("Horizontal", 14, 3, 15, 1))
sketch13.addConstraint(Sketcher.Constraint("Radius", 4, Q("18 mm")))
sketch13.addConstraint(Sketcher.Constraint("Diameter", 5, Q("1.6 mm")))
sketch13.addConstraint(Sketcher.Constraint("Radius", 1, Q("23.75 mm")))
sketch13.addConstraint(Sketcher.Constraint("DistanceY", 0, 2, -1, 1, Q("13.3 mm")))
sketch13.addConstraint(Sketcher.Constraint("DistanceX", 6, 3, 5, 3, Q("2.5289 mm")))
sketch13.addConstraint(Sketcher.Constraint("DistanceY", 12, 3, 3, 2, Q("3.955902 mm")))
sketch13.addConstraint(Sketcher.Constraint("DistanceX", -1, 1, 5, 3, Q("3.804261 mm")))
sketch13.addConstraint(Sketcher.Constraint("DistanceY", 6, 3, -1, 1, Q("19.458249 mm")))
sketch13.addConstraint(Sketcher.Constraint("DistanceX", -1, 1, 8, 3, Q("6.26807 mm")))
sketch13.addConstraint(Sketcher.Constraint("DistanceX", -1, 1, 9, 3, Q("8.624629 mm")))
sketch13.addConstraint(Sketcher.Constraint("DistanceY", 9, 3, -1, 1, Q("17.489018 mm")))
sketch13.addConstraint(Sketcher.Constraint("DistanceX", 13, 3, -1, 1, Q("10.83362 mm")))
sketch13.addConstraint(Sketcher.Constraint("DistanceY", 6, 3, 8, 3, Q("0.993111 mm")))
sketch13.addConstraint(Sketcher.Constraint("DistanceY", 12, 3, 13, 3, Q("1.275361 mm")))
sketch13.addConstraint(Sketcher.Constraint("DistanceY", 13, 3, 14, 3, Q("1.552781 mm")))
sketch13.addConstraint(Sketcher.Constraint("DistanceX", 14, 3, 3, 2, Q("0.989019 mm")))
sketch13.addConstraint(Sketcher.Constraint("DistanceY", 14, 3, 14, 1, Q("0.601472 mm")))
sketch13.addConstraint(Sketcher.Constraint("DistanceY", 5, 3, -1, 1, Q("19.125313 mm")))
pad7 = body.newObject("PartDesign::Pad", "Pad006")
pad7.Profile = sketch13
pad7.Length = 3
pad7.Reversed = True

doc.recompute()
